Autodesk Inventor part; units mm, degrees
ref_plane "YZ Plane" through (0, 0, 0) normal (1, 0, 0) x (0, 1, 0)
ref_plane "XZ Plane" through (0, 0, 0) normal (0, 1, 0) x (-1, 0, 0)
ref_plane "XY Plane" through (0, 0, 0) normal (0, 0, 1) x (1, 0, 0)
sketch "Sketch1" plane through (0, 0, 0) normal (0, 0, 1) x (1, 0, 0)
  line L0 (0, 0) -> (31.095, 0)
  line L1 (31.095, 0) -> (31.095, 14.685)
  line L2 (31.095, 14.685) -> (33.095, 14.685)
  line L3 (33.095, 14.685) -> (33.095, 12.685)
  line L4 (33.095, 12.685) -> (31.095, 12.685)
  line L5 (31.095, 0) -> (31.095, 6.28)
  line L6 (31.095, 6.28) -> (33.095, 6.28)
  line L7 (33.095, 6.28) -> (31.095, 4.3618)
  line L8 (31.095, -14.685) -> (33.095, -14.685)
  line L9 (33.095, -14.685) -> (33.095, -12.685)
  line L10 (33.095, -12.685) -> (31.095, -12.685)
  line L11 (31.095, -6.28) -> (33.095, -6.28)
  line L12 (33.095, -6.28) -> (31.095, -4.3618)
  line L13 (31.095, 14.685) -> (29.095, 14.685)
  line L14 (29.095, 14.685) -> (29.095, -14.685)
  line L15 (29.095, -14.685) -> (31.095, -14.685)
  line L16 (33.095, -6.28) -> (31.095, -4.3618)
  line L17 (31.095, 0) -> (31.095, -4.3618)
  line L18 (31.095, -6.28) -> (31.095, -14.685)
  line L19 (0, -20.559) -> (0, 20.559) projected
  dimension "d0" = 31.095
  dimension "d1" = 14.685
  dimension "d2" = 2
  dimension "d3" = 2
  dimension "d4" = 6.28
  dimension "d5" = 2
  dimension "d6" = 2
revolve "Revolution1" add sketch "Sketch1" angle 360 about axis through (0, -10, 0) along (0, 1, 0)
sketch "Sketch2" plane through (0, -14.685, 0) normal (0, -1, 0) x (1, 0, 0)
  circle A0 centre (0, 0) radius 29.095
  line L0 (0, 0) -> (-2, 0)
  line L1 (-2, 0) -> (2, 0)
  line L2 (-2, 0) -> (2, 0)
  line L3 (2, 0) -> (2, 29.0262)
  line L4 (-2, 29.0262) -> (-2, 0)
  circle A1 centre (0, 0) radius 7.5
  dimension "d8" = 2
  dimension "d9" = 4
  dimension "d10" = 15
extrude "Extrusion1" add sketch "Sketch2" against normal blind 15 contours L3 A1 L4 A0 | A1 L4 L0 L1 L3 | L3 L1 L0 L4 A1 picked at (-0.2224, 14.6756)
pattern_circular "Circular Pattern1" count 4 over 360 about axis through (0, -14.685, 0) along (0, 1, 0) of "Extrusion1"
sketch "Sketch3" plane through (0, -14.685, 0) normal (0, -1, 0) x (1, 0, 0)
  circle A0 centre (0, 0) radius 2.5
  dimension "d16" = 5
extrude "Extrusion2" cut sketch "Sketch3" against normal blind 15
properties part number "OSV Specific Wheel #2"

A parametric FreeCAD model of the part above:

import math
import FreeCAD as App
import Part
import Sketcher
from FreeCAD import Vector
Q = App.Units.Quantity

doc = App.newDocument("Part")
body = doc.addObject("PartDesign::Body", "Body")

sketch1 = body.newObject("Sketcher::SketchObject", "Sketch")
sketch1.AttachmentSupport = (doc.getObject("XY_Plane"), [""])
sketch1.MapMode = "FlatFace"
sketch1.addGeometry([
    Part.LineSegment(Vector(29.095, 14.685, 0), Vector(29.095, -14.685, 0)),
    Part.LineSegment(Vector(29.095, -14.685, 0), Vector(33.095, -14.685, 0)),
    Part.LineSegment(Vector(33.095, -14.685, 0), Vector(33.095, -12.685, 0)),
    Part.LineSegment(Vector(33.095, -12.685, 0), Vector(31.095, -12.685, 0)),
    Part.LineSegment(Vector(31.095, -12.685, 0), Vector(31.095, -6.28, 0)),
    Part.LineSegment(Vector(31.095, -6.28, 0), Vector(33.095, -6.28, 0)),
    Part.LineSegment(Vector(33.095, -6.28, 0), Vector(31.095, -4.3618, 0)),
    Part.LineSegment(Vector(31.095, -4.3618, 0), Vector(31.095, 4.3618, 0)),
    Part.LineSegment(Vector(31.095, 4.3618, 0), Vector(33.095, 6.28, 0)),
    Part.LineSegment(Vector(33.095, 6.28, 0), Vector(31.095, 6.28, 0)),
    Part.LineSegment(Vector(31.095, 6.28, 0), Vector(31.095, 12.685, 0)),
    Part.LineSegment(Vector(31.095, 12.685, 0), Vector(33.095, 12.685, 0)),
    Part.LineSegment(Vector(33.095, 12.685, 0), Vector(33.095, 14.685, 0)),
    Part.LineSegment(Vector(33.095, 14.685, 0), Vector(29.095, 14.685, 0)),
], False)
sketch1.addConstraint([
    Sketcher.Constraint("Coincident", 0, 2, 1, 1),
    Sketcher.Constraint("Coincident", 1, 2, 2, 1),
    Sketcher.Constraint("Coincident", 2, 2, 3, 1),
    Sketcher.Constraint("Coincident", 3, 2, 4, 1),
    Sketcher.Constraint("Coincident", 4, 2, 5, 1),
    Sketcher.Constraint("Coincident", 5, 2, 6, 1),
    Sketcher.Constraint("Coincident", 6, 2, 7, 1),
    Sketcher.Constraint("Coincident", 7, 2, 8, 1),
    Sketcher.Constraint("Coincident", 8, 2, 9, 1),
    Sketcher.Constraint("Coincident", 9, 2, 10, 1),
    Sketcher.Constraint("Coincident", 10, 2, 11, 1),
    Sketcher.Constraint("Coincident", 11, 2, 12, 1),
    Sketcher.Constraint("Coincident", 12, 2, 13, 1),
    Sketcher.Constraint("Coincident", 13, 2, 0, 1),
    Sketcher.Constraint("Vertical", 0),
    Sketcher.Constraint("Horizontal", 1),
    Sketcher.Constraint("Vertical", 2),
    Sketcher.Constraint("Horizontal", 3),
    Sketcher.Constraint("Vertical", 4),
    Sketcher.Constraint("Horizontal", 5),
    Sketcher.Constraint("Vertical", 7),
    Sketcher.Constraint("Horizontal", 9),
    Sketcher.Constraint("Vertical", 10),
    Sketcher.Constraint("Horizontal", 11),
    Sketcher.Constraint("Vertical", 12),
    Sketcher.Constraint("Horizontal", 13),
    Sketcher.Constraint("Symmetric", 5, 2, 8, 2, -1),
    Sketcher.Constraint("Symmetric", 3, 2, 10, 2, -1),
    Sketcher.Constraint("Symmetric", 1, 2, 12, 2, -1),
    Sketcher.Constraint("Vertical", 2, 2, 5, 2),
    Sketcher.Constraint("Vertical", 4, 2, 6, 2),
    Sketcher.Constraint("Equal", 11, 2),
    Sketcher.Constraint("Equal", 6, 8),
    Sketcher.Constraint("DistanceX", 3, 2, 3, 1, Q("2 mm")),
    Sketcher.Constraint("DistanceX", 0, 2, 3, 2, Q("2 mm")),
    Sketcher.Constraint("DistanceY", 4, 2, -1, 1, Q("6.28 mm")),
    Sketcher.Constraint("DistanceY", 0, 2, -1, 1, Q("14.685 mm")),
    Sketcher.Constraint("DistanceX", -1, 1, 3, 2, Q("31.095 mm")),
    Sketcher.Constraint("DistanceY", 7, 1, 7, 2, Q("8.7236 mm")),
])
revolution = body.newObject("PartDesign::Revolution", "Revolution")
revolution.Profile = sketch1
revolution.ReferenceAxis = (sketch1, ["V_Axis"])
revolution.Angle = 360

sketch2 = body.newObject("Sketcher::SketchObject", "Sketch001")
sketch2.AttachmentSupport = (doc.getObject("XZ_Plane"), [""])
sketch2.MapMode = "FlatFace"
sketch2.AttachmentOffset = App.Placement(Vector(0, 0, 14.685), App.Rotation())
sketch2.addGeometry([
    Part.LineSegment(Vector(2, 7.228416, 0), Vector(2, 29.0262, 0)),
    Part.ArcOfCircle(Part.Circle(Vector(0, 0, 0), Vector(0, 0, 1), 29.095), math.radians(86.058364), math.radians(93.941636)),
    Part.LineSegment(Vector(-2, 29.0262, 0), Vector(-2, 7.228416, 0)),
    Part.ArcOfCircle(Part.Circle(Vector(0, 0, 0), Vector(0, 0, 1), 7.5), math.radians(105.46601), math.radians(434.53399)),
], False)
sketch2.addConstraint([
    Sketcher.Constraint("Coincident", 0, 2, 1, 1),
    Sketcher.Constraint("Coincident", 1, 2, 2, 1),
    Sketcher.Constraint("Coincident", 2, 2, 3, 1),
    Sketcher.Constraint("Coincident", 3, 2, 0, 1),
    Sketcher.Constraint("Vertical", 0),
    Sketcher.Constraint("Vertical", 2),
    Sketcher.Constraint("Coincident", 1, 3, -1, 1),
    Sketcher.Constraint("Coincident", 3, 3, -1, 1),
    Sketcher.Constraint("Horizontal", 0, 2, 1, 2),
    Sketcher.Constraint("Radius", 3, Q("7.5 mm")),
    Sketcher.Constraint("DistanceX", -1, 1, 0, 2, Q("2 mm")),
    Sketcher.Constraint("Radius", 1, Q("29.095 mm")),
])
pad1 = body.newObject("PartDesign::Pad", "Pad")
pad1.Profile = sketch2
pad1.Length = 15
pad1.Reversed = True
doc.recompute()

polarpattern = body.newObject("PartDesign::PolarPattern", "PolarPattern")
polarpattern.Originals = [pad1]
polarpattern.Axis = (doc.getObject("Y_Axis"), [""])
polarpattern.Angle = 360
polarpattern.Occurrences = 4
body.Tip = polarpattern

sketch3 = body.newObject("Sketcher::SketchObject", "Sketch002")
sketch3.AttachmentSupport = (doc.getObject("XZ_Plane"), [""])
sketch3.MapMode = "FlatFace"
sketch3.AttachmentOffset = App.Placement(Vector(0, 0, 14.685), App.Rotation())
sketch3.addGeometry(Part.Circle(Vector(0, 0, 0), Vector(0, 0, 1), 2.5), False)
sketch3.addConstraint([
    Sketcher.Constraint("Coincident", 0, 3, -1, 1),
    Sketcher.Constraint("Diameter", 0, Q("5 mm")),
])
pocket1 = body.newObject("PartDesign::Pocket", "Pocket")
pocket1.Profile = sketch3
pocket1.Length = 15

doc.recompute()
